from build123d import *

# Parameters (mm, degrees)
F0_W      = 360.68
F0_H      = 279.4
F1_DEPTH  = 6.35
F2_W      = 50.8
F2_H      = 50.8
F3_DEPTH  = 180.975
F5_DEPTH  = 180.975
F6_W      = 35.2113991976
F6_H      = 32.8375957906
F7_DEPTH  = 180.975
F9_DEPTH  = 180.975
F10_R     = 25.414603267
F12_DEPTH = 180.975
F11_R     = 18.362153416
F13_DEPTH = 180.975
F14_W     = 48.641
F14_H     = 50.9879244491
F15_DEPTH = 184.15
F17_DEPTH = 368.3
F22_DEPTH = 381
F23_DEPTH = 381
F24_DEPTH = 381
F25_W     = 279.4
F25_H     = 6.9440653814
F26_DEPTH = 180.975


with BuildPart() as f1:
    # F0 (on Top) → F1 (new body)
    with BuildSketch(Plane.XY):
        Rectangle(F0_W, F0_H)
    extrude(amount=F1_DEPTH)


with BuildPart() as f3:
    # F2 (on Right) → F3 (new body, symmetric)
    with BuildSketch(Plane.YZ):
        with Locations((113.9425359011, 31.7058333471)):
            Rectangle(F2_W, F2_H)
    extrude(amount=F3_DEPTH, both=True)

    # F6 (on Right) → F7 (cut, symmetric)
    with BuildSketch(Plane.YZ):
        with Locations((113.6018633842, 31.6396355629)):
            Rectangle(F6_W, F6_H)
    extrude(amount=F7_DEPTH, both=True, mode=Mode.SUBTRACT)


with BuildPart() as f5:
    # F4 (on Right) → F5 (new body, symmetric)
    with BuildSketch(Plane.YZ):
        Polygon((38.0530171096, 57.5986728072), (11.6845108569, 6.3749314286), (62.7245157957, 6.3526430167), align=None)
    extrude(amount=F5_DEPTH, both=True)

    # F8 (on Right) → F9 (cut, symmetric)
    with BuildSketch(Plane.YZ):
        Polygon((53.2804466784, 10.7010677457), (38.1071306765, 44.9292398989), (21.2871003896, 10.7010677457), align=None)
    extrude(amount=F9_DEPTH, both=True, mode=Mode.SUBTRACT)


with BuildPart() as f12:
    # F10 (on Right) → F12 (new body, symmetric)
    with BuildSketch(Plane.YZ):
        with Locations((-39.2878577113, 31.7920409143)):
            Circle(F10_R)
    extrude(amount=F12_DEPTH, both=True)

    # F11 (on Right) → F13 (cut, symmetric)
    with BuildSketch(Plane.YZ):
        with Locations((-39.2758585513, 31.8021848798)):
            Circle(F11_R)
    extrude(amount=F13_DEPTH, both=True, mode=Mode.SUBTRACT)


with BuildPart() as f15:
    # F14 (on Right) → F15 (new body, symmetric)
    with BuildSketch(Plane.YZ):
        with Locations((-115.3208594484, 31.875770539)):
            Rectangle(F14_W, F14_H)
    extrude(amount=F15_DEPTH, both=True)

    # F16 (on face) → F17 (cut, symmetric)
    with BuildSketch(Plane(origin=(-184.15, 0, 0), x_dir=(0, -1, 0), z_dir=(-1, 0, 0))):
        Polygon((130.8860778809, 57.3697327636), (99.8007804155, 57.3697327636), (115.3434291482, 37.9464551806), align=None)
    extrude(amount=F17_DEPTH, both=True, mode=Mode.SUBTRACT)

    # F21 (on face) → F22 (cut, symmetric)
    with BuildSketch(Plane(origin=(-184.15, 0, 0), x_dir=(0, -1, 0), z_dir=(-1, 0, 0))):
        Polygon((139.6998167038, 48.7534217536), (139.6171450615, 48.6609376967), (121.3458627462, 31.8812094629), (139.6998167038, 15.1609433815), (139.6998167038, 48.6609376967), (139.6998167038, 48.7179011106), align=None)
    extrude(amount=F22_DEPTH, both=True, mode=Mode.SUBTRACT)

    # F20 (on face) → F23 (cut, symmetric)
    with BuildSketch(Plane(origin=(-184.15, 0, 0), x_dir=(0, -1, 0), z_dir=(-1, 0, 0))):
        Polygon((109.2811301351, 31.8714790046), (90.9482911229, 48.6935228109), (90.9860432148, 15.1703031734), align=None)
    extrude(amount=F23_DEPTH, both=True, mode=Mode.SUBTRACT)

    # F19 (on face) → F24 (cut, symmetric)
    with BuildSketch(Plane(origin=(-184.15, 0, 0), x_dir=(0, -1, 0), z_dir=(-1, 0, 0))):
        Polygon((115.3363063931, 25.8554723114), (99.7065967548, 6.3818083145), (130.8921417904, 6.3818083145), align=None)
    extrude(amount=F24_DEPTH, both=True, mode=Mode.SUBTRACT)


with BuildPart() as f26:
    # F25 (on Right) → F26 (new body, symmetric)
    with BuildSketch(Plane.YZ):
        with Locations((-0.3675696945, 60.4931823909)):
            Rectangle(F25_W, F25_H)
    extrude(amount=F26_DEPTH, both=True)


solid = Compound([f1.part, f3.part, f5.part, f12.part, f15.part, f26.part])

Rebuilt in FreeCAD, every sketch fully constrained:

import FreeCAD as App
import Part
import Sketcher
Q = App.Units.Quantity

doc = App.newDocument("Part")
body = doc.addObject("PartDesign::Body", "Body")

sketch1 = body.newObject("Sketcher::SketchObject", "Sketch")
sketch1.AttachmentSupport = (doc.getObject("XY_Plane"), [""])
sketch1.MapMode = "FlatFace"
sketch1.addGeometry([
    Part.LineSegment(App.Vector(-180, 140, 0), App.Vector(-180, -140, 0)),
    Part.LineSegment(App.Vector(-180, -140, 0), App.Vector(180, -140, 0)),
    Part.LineSegment(App.Vector(180, -140, 0), App.Vector(180, 140, 0)),
    Part.LineSegment(App.Vector(180, 140, 0), App.Vector(-180, 140, 0)),
], False)
sketch1.addConstraint([
    Sketcher.Constraint("Coincident", 0, 2, 1, 1),
    Sketcher.Constraint("Coincident", 1, 2, 2, 1),
    Sketcher.Constraint("Coincident", 2, 2, 3, 1),
    Sketcher.Constraint("Coincident", 3, 2, 0, 1),
    Sketcher.Constraint("Vertical", 0),
    Sketcher.Constraint("Horizontal", 1),
    Sketcher.Constraint("Vertical", 2),
    Sketcher.Constraint("Horizontal", 3),
    Sketcher.Constraint("Symmetric", 0, 2, 2, 2, -1, 1),
    Sketcher.Constraint("DistanceY", 0, 2, 0, 1, Q("11 in")),
    Sketcher.Constraint("DistanceX", 1, 1, 1, 2, Q("14.2 in")),
])
pad1 = body.newObject("PartDesign::Pad", "Pad")
pad1.Profile = sketch1
pad1.Length = Q("0.25 in")
body2 = doc.addObject("PartDesign::Body", "Body001")

sketch2 = body2.newObject("Sketcher::SketchObject", "Sketch001")
sketch2.AttachmentSupport = (doc.getObject("YZ_Plane001"), [""])
sketch2.MapMode = "FlatFace"
sketch2.addGeometry([
    Part.LineSegment(App.Vector(89, 57, 0), App.Vector(89, 6, 0)),
    Part.LineSegment(App.Vector(89, 6, 0), App.Vector(139, 6, 0)),
    Part.LineSegment(App.Vector(139, 6, 0), App.Vector(139, 57, 0)),
    Part.LineSegment(App.Vector(139, 57, 0), App.Vector(89, 57, 0)),
], False)
sketch2.addConstraint([
    Sketcher.Constraint("Coincident", 0, 2, 1, 1),
    Sketcher.Constraint("Coincident", 1, 2, 2, 1),
    Sketcher.Constraint("Coincident", 2, 2, 3, 1),
    Sketcher.Constraint("Coincident", 3, 2, 0, 1),
    Sketcher.Constraint("Vertical", 0),
    Sketcher.Constraint("Horizontal", 1),
    Sketcher.Constraint("Vertical", 2),
    Sketcher.Constraint("Horizontal", 3),
    Sketcher.Constraint("Equal", 3, 0),
    Sketcher.Constraint("DistanceX", 1, 1, 1, 2, Q("2 in")),
    Sketcher.Constraint("DistanceX", -1, 1, 0, 2, 88.542536),
    Sketcher.Constraint("DistanceY", -1, 1, 0, 2, 6.305833),
])
pad2 = body2.newObject("PartDesign::Pad", "Pad001")
pad2.Profile = sketch2
pad2.Length = Q("14.25 in")
pad2.Midplane = True

sketch3 = body2.newObject("Sketcher::SketchObject", "Sketch002")
sketch3.AttachmentSupport = (doc.getObject("YZ_Plane001"), [""])
sketch3.MapMode = "FlatFace"
sketch3.addGeometry([
    Part.LineSegment(App.Vector(96, 48, 0), App.Vector(96, 15, 0)),
    Part.LineSegment(App.Vector(96, 15, 0), App.Vector(131, 15, 0)),
    Part.LineSegment(App.Vector(131, 15, 0), App.Vector(131, 48, 0)),
    Part.LineSegment(App.Vector(131, 48, 0), App.Vector(96, 48, 0)),
], False)
sketch3.addConstraint([
    Sketcher.Constraint("Coincident", 0, 2, 1, 1),
    Sketcher.Constraint("Coincident", 1, 2, 2, 1),
    Sketcher.Constraint("Coincident", 2, 2, 3, 1),
    Sketcher.Constraint("Coincident", 3, 2, 0, 1),
    Sketcher.Constraint("Vertical", 0),
    Sketcher.Constraint("Horizontal", 1),
    Sketcher.Constraint("Vertical", 2),
    Sketcher.Constraint("Horizontal", 3),
    Sketcher.Constraint("DistanceX", 1, 1, 1, 2, 35.211399),
    Sketcher.Constraint("DistanceY", 0, 2, 0, 1, 32.837596),
    Sketcher.Constraint("DistanceX", -1, 1, 0, 2, 95.996164),
    Sketcher.Constraint("DistanceY", -1, 1, 0, 2, 15.220838),
])
pocket1 = body2.newObject("PartDesign::Pocket", "Pocket")
pocket1.Profile = sketch3
pocket1.Length = Q("14.25 in")
pocket1.Midplane = True
body3 = doc.addObject("PartDesign::Body", "Body002")

sketch4 = body3.newObject("Sketcher::SketchObject", "Sketch003")
sketch4.AttachmentSupport = (doc.getObject("YZ_Plane002"), [""])
sketch4.MapMode = "FlatFace"
sketch4.addGeometry([
    Part.LineSegment(App.Vector(38, 58, 0), App.Vector(12, 6, 0)),
    Part.LineSegment(App.Vector(12, 6, 0), App.Vector(63, 6, 0)),
    Part.LineSegment(App.Vector(63, 6, 0), App.Vector(38, 58, 0)),
], False)
sketch4.addConstraint([
    Sketcher.Constraint("Coincident", 0, 2, 1, 1),
    Sketcher.Constraint("Coincident", 1, 2, 2, 1),
    Sketcher.Constraint("Coincident", 2, 2, 0, 1),
    Sketcher.Constraint("DistanceX", 2, 2, 1, 2, 24.671499),
    Sketcher.Constraint("Distance", 1, 51.04001),
    Sketcher.Constraint("Distance", 2, 56.87564),
    Sketcher.Constraint("DistanceX", -1, 1, 0, 2, 11.684511),
    Sketcher.Constraint("DistanceY", -1, 1, 0, 2, 6.374931),
    Sketcher.Constraint("DistanceY", 1, 2, 0, 2, 0.022288),
])
pad3 = body3.newObject("PartDesign::Pad", "Pad002")
pad3.Profile = sketch4
pad3.Length = Q("14.25 in")
pad3.Midplane = True

sketch5 = body3.newObject("Sketcher::SketchObject", "Sketch004")
sketch5.AttachmentSupport = (doc.getObject("YZ_Plane002"), [""])
sketch5.MapMode = "FlatFace"
sketch5.addGeometry([
    Part.LineSegment(App.Vector(53, 11, 0), App.Vector(38, 45, 0)),
    Part.LineSegment(App.Vector(38, 45, 0), App.Vector(21, 11, 0)),
    Part.LineSegment(App.Vector(21, 11, 0), App.Vector(53, 11, 0)),
], False)
sketch5.addConstraint([
    Sketcher.Constraint("Coincident", 0, 2, 1, 1),
    Sketcher.Constraint("Coincident", 1, 2, 2, 1),
    Sketcher.Constraint("Coincident", 2, 2, 0, 1),
    Sketcher.Constraint("Horizontal", 2),
    Sketcher.Constraint("DistanceX", -1, 1, 1, 2, 21.2871),
    Sketcher.Constraint("Distance", 1, 38.137661),
    Sketcher.Constraint("DistanceX", 2, 1, 2, 2, 31.993346),
    Sketcher.Constraint("DistanceX", -1, 1, 0, 2, 38.107131),
    Sketcher.Constraint("DistanceY", -1, 1, 0, 2, 44.92924),
])
pocket2 = body3.newObject("PartDesign::Pocket", "Pocket001")
pocket2.Profile = sketch5
pocket2.Length = Q("14.25 in")
pocket2.Midplane = True
body4 = doc.addObject("PartDesign::Body", "Body003")

sketch6 = body4.newObject("Sketcher::SketchObject", "Sketch005")
sketch6.AttachmentSupport = (doc.getObject("YZ_Plane003"), [""])
sketch6.MapMode = "FlatFace"
sketch6.addGeometry(Part.Circle(App.Vector(-39, 32, 0), App.Vector(0, 0, 1), 25), False)
sketch6.addConstraint([
    Sketcher.Constraint("Diameter", 0, 50.829207),
    Sketcher.Constraint("DistanceY", -1, 1, 0, 3, 31.792041),
    Sketcher.Constraint("DistanceX", 0, 3, -1, 1, 39.287858),
])
pad4 = body4.newObject("PartDesign::Pad", "Pad003")
pad4.Profile = sketch6
pad4.Length = Q("14.25 in")
pad4.Midplane = True

sketch7 = body4.newObject("Sketcher::SketchObject", "Sketch006")
sketch7.AttachmentSupport = (doc.getObject("YZ_Plane003"), [""])
sketch7.MapMode = "FlatFace"
sketch7.addGeometry(Part.Circle(App.Vector(-39, 32, 0), App.Vector(0, 0, 1), 18), False)
sketch7.addConstraint([
    Sketcher.Constraint("Diameter", 0, 36.724307),
    Sketcher.Constraint("DistanceX", 0, 3, -1, 1, 39.275859),
    Sketcher.Constraint("DistanceY", -1, 1, 0, 3, 31.802185),
])
pocket3 = body4.newObject("PartDesign::Pocket", "Pocket002")
pocket3.Profile = sketch7
pocket3.Length = Q("14.25 in")
pocket3.Midplane = True
body5 = doc.addObject("PartDesign::Body", "Body004")

sketch8 = body5.newObject("Sketcher::SketchObject", "Sketch007")
sketch8.AttachmentSupport = (doc.getObject("YZ_Plane004"), [""])
sketch8.MapMode = "FlatFace"
sketch8.addGeometry([
    Part.LineSegment(App.Vector(-140, 57, 0), App.Vector(-140, 6, 0)),
    Part.LineSegment(App.Vector(-140, 6, 0), App.Vector(-91, 6, 0)),
    Part.LineSegment(App.Vector(-91, 6, 0), App.Vector(-91, 57, 0)),
    Part.LineSegment(App.Vector(-91, 57, 0), App.Vector(-140, 57, 0)),
], False)
sketch8.addConstraint([
    Sketcher.Constraint("Coincident", 0, 2, 1, 1),
    Sketcher.Constraint("Coincident", 1, 2, 2, 1),
    Sketcher.Constraint("Coincident", 2, 2, 3, 1),
    Sketcher.Constraint("Coincident", 3, 2, 0, 1),
    Sketcher.Constraint("Vertical", 0),
    Sketcher.Constraint("Horizontal", 1),
    Sketcher.Constraint("Vertical", 2),
    Sketcher.Constraint("Horizontal", 3),
    Sketcher.Constraint("DistanceX", 1, 1, 1, 2, Q("1.915 in")),
    Sketcher.Constraint("DistanceY", 0, 2, 0, 1, 50.987924),
    Sketcher.Constraint("DistanceX", 0, 2, -1, 1, 139.641359),
    Sketcher.Constraint("DistanceY", -1, 1, 0, 2, 6.381808),
])
pad5 = body5.newObject("PartDesign::Pad", "Pad004")
pad5.Profile = sketch8
pad5.Length = Q("14.5 in")
pad5.Midplane = True

sketch9 = body5.newObject("Sketcher::SketchObject", "Sketch008")
sketch9.AttachmentSupport = (doc.getObject("YZ_Plane004"), [""])
sketch9.MapMode = "FlatFace"
sketch9.AttachmentOffset = App.Placement(App.Vector(0, 0, -7.25 * 25.4), App.Rotation())
sketch9.addGeometry([
    Part.LineSegment(App.Vector(-131, 57, 0), App.Vector(-100, 57, 0)),
    Part.LineSegment(App.Vector(-100, 57, 0), App.Vector(-115, 38, 0)),
    Part.LineSegment(App.Vector(-115, 38, 0), App.Vector(-131, 57, 0)),
], False)
sketch9.addConstraint([
    Sketcher.Constraint("Coincident", 0, 2, 1, 1),
    Sketcher.Constraint("Coincident", 1, 2, 2, 1),
    Sketcher.Constraint("Coincident", 2, 2, 0, 1),
    Sketcher.Constraint("Horizontal", 0),
    Sketcher.Constraint("Equal", 1, 2),
    Sketcher.Constraint("DistanceX", 0, 1, 0, 2, 31.085297),
    Sketcher.Constraint("DistanceX", 0, 2, -1, 1, 99.80078),
    Sketcher.Constraint("Distance", 1, 24.876448),
    Sketcher.Constraint("DistanceY", -1, 1, 0, 2, 57.369733),
])
pocket4 = body5.newObject("PartDesign::Pocket", "Pocket003")
pocket4.Profile = sketch9
pocket4.Length = Q("29 in")
pocket4.Midplane = True

sketch10 = body5.newObject("Sketcher::SketchObject", "Sketch009")
sketch10.AttachmentSupport = (doc.getObject("YZ_Plane004"), [""])
sketch10.MapMode = "FlatFace"
sketch10.AttachmentOffset = App.Placement(App.Vector(0, 0, -7.25 * 25.4), App.Rotation())
sketch10.addGeometry([
    Part.LineSegment(App.Vector(-139.7, 48.75, 0), App.Vector(-139.62, 48.66, 0)),
    Part.LineSegment(App.Vector(-139.62, 48.66, 0), App.Vector(-121.35, 31.88, 0)),
    Part.LineSegment(App.Vector(-121.35, 31.88, 0), App.Vector(-139.7, 15.16, 0)),
    Part.LineSegment(App.Vector(-139.7, 15.16, 0), App.Vector(-139.7, 48.75, 0)),
], False)
sketch10.addConstraint([
    Sketcher.Constraint("Coincident", 0, 2, 1, 1),
    Sketcher.Constraint("Coincident", 1, 2, 2, 1),
    Sketcher.Constraint("Coincident", 2, 2, 3, 1),
    Sketcher.Constraint("Coincident", 3, 2, 0, 1),
    Sketcher.Constraint("Vertical", 3),
    Sketcher.Constraint("DistanceY", 3, 1, 3, 2, 33.592478),
    Sketcher.Constraint("DistanceY", -1, 1, 1, 2, 31.881209),
    Sketcher.Constraint("DistanceY", -1, 1, 3, 2, 48.753422),
    Sketcher.Constraint("DistanceY", 1, 2, 0, 2, 16.779728),
    Sketcher.Constraint("DistanceX", 2, 2, 0, 2, 0.082672),
    Sketcher.Constraint("Distance", 1, 24.807238),
    Sketcher.Constraint("DistanceX", 0, 2, -1, 1, 139.617145),
])
pocket5 = body5.newObject("PartDesign::Pocket", "Pocket004")
pocket5.Profile = sketch10
pocket5.Length = Q("30 in")
pocket5.Midplane = True

sketch11 = body5.newObject("Sketcher::SketchObject", "Sketch010")
sketch11.AttachmentSupport = (doc.getObject("YZ_Plane004"), [""])
sketch11.MapMode = "FlatFace"
sketch11.AttachmentOffset = App.Placement(App.Vector(0, 0, -7.25 * 25.4), App.Rotation())
sketch11.addGeometry([
    Part.LineSegment(App.Vector(-109, 32, 0), App.Vector(-91, 49, 0)),
    Part.LineSegment(App.Vector(-91, 49, 0), App.Vector(-91, 15, 0)),
    Part.LineSegment(App.Vector(-91, 15, 0), App.Vector(-109, 32, 0)),
], False)
sketch11.addConstraint([
    Sketcher.Constraint("Coincident", 0, 2, 1, 1),
    Sketcher.Constraint("Coincident", 1, 2, 2, 1),
    Sketcher.Constraint("Coincident", 2, 2, 0, 1),
    Sketcher.Constraint("Distance", 0, 24.881201),
    Sketcher.Constraint("Distance", 1, 33.523241),
    Sketcher.Constraint("DistanceX", 0, 2, -1, 1, 90.948291),
    Sketcher.Constraint("DistanceX", 2, 2, -1, 1, 109.28113),
    Sketcher.Constraint("DistanceY", -1, 1, 2, 2, 31.871479),
    Sketcher.Constraint("Distance", 2, 24.771748),
])
pocket6 = body5.newObject("PartDesign::Pocket", "Pocket005")
pocket6.Profile = sketch11
pocket6.Length = Q("30 in")
pocket6.Midplane = True

sketch12 = body5.newObject("Sketcher::SketchObject", "Sketch011")
sketch12.AttachmentSupport = (doc.getObject("YZ_Plane004"), [""])
sketch12.MapMode = "FlatFace"
sketch12.AttachmentOffset = App.Placement(App.Vector(0, 0, -7.25 * 25.4), App.Rotation())
sketch12.addGeometry([
    Part.LineSegment(App.Vector(-115, 26, 0), App.Vector(-100, 6, 0)),
    Part.LineSegment(App.Vector(-100, 6, 0), App.Vector(-131, 6, 0)),
    Part.LineSegment(App.Vector(-131, 6, 0), App.Vector(-115, 26, 0)),
], False)
sketch12.addConstraint([
    Sketcher.Constraint("Coincident", 0, 2, 1, 1),
    Sketcher.Constraint("Coincident", 1, 2, 2, 1),
    Sketcher.Constraint("Coincident", 2, 2, 0, 1),
    Sketcher.Constraint("Horizontal", 1),
    Sketcher.Constraint("Distance", 0, 24.970211),
    Sketcher.Constraint("DistanceX", 1, 2, 1, 1, 31.185545),
    Sketcher.Constraint("DistanceY", -1, 1, 0, 2, 6.381808),
    Sketcher.Constraint("DistanceX", 1, 2, -1, 1, 130.892142),
    Sketcher.Constraint("DistanceX", 2, 2, 0, 2, 15.62971),
])
pocket7 = body5.newObject("PartDesign::Pocket", "Pocket006")
pocket7.Profile = sketch12
pocket7.Length = Q("30 in")
pocket7.Midplane = True
body6 = doc.addObject("PartDesign::Body", "Body005")

sketch13 = body6.newObject("Sketcher::SketchObject", "Sketch012")
sketch13.AttachmentSupport = (doc.getObject("YZ_Plane005"), [""])
sketch13.MapMode = "FlatFace"
sketch13.addGeometry([
    Part.LineSegment(App.Vector(-140, 64, 0), App.Vector(-140, 57, 0)),
    Part.LineSegment(App.Vector(-140, 57, 0), App.Vector(139, 57, 0)),
    Part.LineSegment(App.Vector(139, 57, 0), App.Vector(139, 64, 0)),
    Part.LineSegment(App.Vector(139, 64, 0), App.Vector(-140, 64, 0)),
], False)
sketch13.addConstraint([
    Sketcher.Constraint("Coincident", 0, 2, 1, 1),
    Sketcher.Constraint("Coincident", 1, 2, 2, 1),
    Sketcher.Constraint("Coincident", 2, 2, 3, 1),
    Sketcher.Constraint("Coincident", 3, 2, 0, 1),
    Sketcher.Constraint("Vertical", 0),
    Sketcher.Constraint("Horizontal", 1),
    Sketcher.Constraint("Vertical", 2),
    Sketcher.Constraint("Horizontal", 3),
    Sketcher.Constraint("DistanceX", 1, 1, 1, 2, Q("11 in")),
    Sketcher.Constraint("DistanceY", 0, 2, 0, 1, 6.944065),
    Sketcher.Constraint("DistanceX", 0, 2, -1, 1, 140.06757),
    Sketcher.Constraint("DistanceY", -1, 1, 0, 2, 57.02115),
])
pad6 = body6.newObject("PartDesign::Pad", "Pad005")
pad6.Profile = sketch13
pad6.Length = Q("14.25 in")
pad6.Midplane = True

doc.recompute()
